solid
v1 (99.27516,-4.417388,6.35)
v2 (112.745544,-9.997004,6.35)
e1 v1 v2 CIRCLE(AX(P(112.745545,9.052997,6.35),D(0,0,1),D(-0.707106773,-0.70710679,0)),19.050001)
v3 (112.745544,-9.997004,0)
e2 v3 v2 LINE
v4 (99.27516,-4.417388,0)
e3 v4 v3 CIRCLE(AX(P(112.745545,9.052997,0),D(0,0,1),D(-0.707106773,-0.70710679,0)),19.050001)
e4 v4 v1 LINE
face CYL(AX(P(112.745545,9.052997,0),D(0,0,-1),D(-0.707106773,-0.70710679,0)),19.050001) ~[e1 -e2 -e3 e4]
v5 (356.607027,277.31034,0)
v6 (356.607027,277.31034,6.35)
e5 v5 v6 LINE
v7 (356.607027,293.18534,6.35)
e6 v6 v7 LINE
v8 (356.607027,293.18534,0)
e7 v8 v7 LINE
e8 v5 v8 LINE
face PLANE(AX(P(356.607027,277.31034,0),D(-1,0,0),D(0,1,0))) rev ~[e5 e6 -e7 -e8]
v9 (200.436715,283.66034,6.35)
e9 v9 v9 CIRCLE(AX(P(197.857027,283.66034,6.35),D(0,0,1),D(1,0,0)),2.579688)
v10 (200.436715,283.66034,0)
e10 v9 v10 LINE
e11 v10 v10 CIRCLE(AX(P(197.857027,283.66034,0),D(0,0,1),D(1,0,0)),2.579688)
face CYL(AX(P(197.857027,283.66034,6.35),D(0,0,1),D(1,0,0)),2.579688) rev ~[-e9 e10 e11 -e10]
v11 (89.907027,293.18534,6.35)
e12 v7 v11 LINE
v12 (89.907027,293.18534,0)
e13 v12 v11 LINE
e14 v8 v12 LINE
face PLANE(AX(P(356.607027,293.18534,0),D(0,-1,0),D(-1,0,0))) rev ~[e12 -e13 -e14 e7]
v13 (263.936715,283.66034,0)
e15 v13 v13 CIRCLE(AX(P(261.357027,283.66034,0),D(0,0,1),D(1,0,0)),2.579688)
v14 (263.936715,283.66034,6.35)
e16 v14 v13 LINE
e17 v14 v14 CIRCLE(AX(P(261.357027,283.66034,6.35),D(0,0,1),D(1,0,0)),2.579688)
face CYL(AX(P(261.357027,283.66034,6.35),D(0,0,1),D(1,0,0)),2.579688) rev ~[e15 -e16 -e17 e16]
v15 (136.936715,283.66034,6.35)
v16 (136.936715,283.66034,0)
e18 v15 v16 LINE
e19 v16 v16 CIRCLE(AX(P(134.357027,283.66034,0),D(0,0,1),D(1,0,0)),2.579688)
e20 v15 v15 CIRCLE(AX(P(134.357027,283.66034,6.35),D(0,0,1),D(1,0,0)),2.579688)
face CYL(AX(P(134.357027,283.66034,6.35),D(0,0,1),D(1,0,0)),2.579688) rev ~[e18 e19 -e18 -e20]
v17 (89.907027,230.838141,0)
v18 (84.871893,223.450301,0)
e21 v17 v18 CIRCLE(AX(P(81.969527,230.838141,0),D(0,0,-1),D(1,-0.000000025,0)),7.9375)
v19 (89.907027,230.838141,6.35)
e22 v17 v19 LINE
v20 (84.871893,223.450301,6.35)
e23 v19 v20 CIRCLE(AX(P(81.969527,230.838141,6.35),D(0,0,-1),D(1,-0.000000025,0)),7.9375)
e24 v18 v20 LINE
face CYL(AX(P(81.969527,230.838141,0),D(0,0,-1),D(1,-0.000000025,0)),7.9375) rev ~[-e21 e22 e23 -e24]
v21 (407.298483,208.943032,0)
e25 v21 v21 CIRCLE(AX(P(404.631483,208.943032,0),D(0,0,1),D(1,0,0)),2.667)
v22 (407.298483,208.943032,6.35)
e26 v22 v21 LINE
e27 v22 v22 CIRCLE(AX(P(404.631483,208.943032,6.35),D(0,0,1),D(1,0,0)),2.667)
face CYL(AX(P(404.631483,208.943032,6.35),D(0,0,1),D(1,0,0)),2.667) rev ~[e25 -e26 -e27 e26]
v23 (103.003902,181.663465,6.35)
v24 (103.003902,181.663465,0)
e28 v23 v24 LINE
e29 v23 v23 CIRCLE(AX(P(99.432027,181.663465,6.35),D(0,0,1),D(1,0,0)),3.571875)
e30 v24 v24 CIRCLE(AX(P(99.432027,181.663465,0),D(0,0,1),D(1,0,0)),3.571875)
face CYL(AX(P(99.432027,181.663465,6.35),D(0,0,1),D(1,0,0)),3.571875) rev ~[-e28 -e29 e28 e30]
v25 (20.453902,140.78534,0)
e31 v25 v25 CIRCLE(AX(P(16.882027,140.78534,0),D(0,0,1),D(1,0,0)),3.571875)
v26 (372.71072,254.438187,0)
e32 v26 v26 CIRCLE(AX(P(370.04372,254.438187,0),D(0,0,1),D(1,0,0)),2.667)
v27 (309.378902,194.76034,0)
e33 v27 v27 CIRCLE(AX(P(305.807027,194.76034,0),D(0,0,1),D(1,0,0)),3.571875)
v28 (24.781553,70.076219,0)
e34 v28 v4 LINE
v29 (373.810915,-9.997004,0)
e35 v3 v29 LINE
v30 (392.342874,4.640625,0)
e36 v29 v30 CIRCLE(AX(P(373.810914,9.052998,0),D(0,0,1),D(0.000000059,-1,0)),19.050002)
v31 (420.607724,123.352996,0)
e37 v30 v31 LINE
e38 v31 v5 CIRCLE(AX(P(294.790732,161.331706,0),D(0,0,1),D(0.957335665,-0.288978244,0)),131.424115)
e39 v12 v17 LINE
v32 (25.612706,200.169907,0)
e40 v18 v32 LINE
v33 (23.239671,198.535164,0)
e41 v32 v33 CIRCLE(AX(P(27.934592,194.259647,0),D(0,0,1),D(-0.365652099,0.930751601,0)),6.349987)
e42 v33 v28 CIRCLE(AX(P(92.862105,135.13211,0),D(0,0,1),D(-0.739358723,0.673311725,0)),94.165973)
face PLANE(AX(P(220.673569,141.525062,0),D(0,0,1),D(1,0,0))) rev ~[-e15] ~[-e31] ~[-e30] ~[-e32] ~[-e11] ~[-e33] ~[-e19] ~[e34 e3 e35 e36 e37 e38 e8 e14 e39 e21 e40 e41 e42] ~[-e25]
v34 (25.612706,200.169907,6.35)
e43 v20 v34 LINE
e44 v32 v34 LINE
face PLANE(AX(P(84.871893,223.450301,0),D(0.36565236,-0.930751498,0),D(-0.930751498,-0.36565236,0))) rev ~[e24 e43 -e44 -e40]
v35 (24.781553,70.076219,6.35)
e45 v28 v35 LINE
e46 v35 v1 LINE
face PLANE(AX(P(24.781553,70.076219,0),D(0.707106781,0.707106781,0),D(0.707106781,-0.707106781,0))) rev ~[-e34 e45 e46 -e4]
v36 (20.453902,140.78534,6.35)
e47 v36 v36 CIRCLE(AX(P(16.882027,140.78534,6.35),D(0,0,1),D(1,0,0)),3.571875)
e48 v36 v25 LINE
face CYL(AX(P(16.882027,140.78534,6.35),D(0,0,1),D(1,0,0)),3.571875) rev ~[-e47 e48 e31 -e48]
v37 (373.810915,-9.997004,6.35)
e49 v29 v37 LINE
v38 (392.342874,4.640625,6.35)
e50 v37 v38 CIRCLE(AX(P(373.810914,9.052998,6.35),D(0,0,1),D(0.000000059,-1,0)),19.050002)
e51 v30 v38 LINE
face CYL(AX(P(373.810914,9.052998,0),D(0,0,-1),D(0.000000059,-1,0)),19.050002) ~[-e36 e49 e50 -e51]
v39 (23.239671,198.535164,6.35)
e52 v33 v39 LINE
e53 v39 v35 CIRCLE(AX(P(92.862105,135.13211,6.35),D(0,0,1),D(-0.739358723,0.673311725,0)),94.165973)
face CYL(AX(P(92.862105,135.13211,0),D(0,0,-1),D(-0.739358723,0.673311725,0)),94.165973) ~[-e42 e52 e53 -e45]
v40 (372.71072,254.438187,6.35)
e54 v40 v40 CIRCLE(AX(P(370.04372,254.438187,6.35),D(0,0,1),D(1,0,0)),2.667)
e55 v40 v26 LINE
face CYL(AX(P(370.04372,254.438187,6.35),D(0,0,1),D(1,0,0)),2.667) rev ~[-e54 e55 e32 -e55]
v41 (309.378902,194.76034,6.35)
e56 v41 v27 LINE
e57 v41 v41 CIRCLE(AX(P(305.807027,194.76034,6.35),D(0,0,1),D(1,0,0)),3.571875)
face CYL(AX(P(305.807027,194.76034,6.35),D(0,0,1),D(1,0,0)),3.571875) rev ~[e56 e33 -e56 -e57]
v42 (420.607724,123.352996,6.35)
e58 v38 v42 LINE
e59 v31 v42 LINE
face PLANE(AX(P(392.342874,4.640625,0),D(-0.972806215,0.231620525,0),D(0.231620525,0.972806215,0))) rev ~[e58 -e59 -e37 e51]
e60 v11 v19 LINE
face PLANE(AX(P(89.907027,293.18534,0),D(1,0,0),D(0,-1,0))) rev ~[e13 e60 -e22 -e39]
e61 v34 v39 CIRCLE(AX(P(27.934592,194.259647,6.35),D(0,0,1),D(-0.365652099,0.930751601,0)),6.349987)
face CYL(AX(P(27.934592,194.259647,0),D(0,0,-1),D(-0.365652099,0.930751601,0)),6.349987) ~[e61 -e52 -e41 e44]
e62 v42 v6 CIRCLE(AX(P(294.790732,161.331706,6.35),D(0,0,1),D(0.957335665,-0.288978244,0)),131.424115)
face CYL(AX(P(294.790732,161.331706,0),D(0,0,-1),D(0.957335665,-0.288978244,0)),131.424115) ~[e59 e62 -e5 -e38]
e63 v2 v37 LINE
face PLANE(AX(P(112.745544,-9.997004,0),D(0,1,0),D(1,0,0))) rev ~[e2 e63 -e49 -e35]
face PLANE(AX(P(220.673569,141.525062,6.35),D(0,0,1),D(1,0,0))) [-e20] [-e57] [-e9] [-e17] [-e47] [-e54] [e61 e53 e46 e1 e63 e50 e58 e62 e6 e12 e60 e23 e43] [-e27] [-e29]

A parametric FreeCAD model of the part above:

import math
import FreeCAD as App
import Part
import Sketcher

V = App.Vector
Q = App.Units.Quantity

doc = App.newDocument("Part")
params = doc.addObject("Spreadsheet::Sheet", "Params")
for row, (alias, value) in enumerate([
    ("sketch1_radius", "0.75 in"),
    ("sketch1_width", "10.5 in"),
    ("sketch1_radius2", "0.3125 in"),
    ("sketch1_height", "0.625 in"),
    ("pad1_length", "0.25 in"),
    ("sketch2_diameter", "0.203125 in"),
    ("sketch3_diameter", "0.28125 in"),
    ("pocket2_length", "0.375 in"),
    ("sketch4_diameter", "0.21 in"),
    ("pocket3_length", "0.3 in"),
], start=1):
    params.set(f"A{row}", alias)
    params.set(f"B{row}", "=" + value)
    params.setAlias(f"B{row}", alias)

body = doc.addObject("PartDesign::Body", "Body")

# Sketch on XY plane
sketch1 = body.newObject("Sketcher::SketchObject", "Sketch")
sketch1.AttachmentSupport = (doc.getObject("XY_Plane"), [""])
sketch1.MapMode = "FlatFace"
sketch1.addGeometry(Part.LineSegment(V(356.6, 293.2, 0), V(89.9, 293.2, 0)), False)
sketch1.addGeometry(Part.LineSegment(V(89.9, 293.2, 0), V(89.9, 230.8, 0)), False)
sketch1.addGeometry(Part.ArcOfCircle(Part.Circle(V(82, 230.8, 0), V(0, 0, 1), 7.9), math.radians(-69), math.radians(0)), False)
sketch1.addGeometry(Part.LineSegment(V(84.9, 223.5, 0), V(25.6, 200.2, 0)), False)
sketch1.addGeometry(Part.ArcOfCircle(Part.Circle(V(27.9, 194.3, 0), V(0, 0, 1), 6.3), math.radians(111), math.radians(138)), False)
sketch1.addGeometry(Part.ArcOfCircle(Part.Circle(V(92.9, 135.1, 0), V(0, 0, 1), 94.2), math.radians(138), math.radians(224)), False)
sketch1.addGeometry(Part.LineSegment(V(24.8, 70.1, 0), V(99.3, -4.4, 0)), False)
sketch1.addGeometry(Part.ArcOfCircle(Part.Circle(V(112.7, 9.1, 0), V(0, 0, 1), 19.1), math.radians(-135), math.radians(-90)), False)
sketch1.addGeometry(Part.LineSegment(V(112.7, -10, 0), V(373.8, -10, 0)), False)
sketch1.addGeometry(Part.ArcOfCircle(Part.Circle(V(373.8, 9.1, 0), V(0, 0, 1), 19.1), math.radians(-90), math.radians(-13)), False)
sketch1.addGeometry(Part.LineSegment(V(392.3, 4.6, 0), V(420.6, 123.4, 0)), False)
sketch1.addGeometry(Part.ArcOfCircle(Part.Circle(V(294.8, 161.3, 0), V(0, 0, 1), 131.4), math.radians(-17), math.radians(62)), False)
sketch1.addGeometry(Part.LineSegment(V(356.6, 277.3, 0), V(356.6, 293.2, 0)), False)
sketch1.addConstraint(Sketcher.Constraint("Coincident", 0, 2, 1, 1))
sketch1.addConstraint(Sketcher.Constraint("Tangent", 1, 2, 2, 2))
sketch1.addConstraint(Sketcher.Constraint("Tangent", 2, 1, 3, 1))
sketch1.addConstraint(Sketcher.Constraint("Tangent", 3, 2, 4, 1))
sketch1.addConstraint(Sketcher.Constraint("Tangent", 4, 2, 5, 1))
sketch1.addConstraint(Sketcher.Constraint("Coincident", 5, 2, 6, 1))
sketch1.addConstraint(Sketcher.Constraint("Tangent", 6, 2, 7, 1))
sketch1.addConstraint(Sketcher.Constraint("Tangent", 7, 2, 8, 1))
sketch1.addConstraint(Sketcher.Constraint("Tangent", 8, 2, 9, 1))
sketch1.addConstraint(Sketcher.Constraint("Tangent", 9, 2, 10, 1))
sketch1.addConstraint(Sketcher.Constraint("Coincident", 10, 2, 11, 1))
sketch1.addConstraint(Sketcher.Constraint("Coincident", 11, 2, 12, 1))
sketch1.addConstraint(Sketcher.Constraint("Coincident", 12, 2, 0, 1))
sketch1.addConstraint(Sketcher.Constraint("Horizontal", 0))
sketch1.addConstraint(Sketcher.Constraint("Vertical", 1))
sketch1.addConstraint(Sketcher.Constraint("Horizontal", 8))
sketch1.addConstraint(Sketcher.Constraint("Vertical", 12))
sketch1.addConstraint(Sketcher.Constraint("Equal", 7, 9))
sketch1.addConstraint(Sketcher.Constraint("Radius", 7, Q("0.75 in")))
sketch1.addConstraint(Sketcher.Constraint("DistanceX", 0, 2, 0, 1, Q("10.5 in")))
sketch1.addConstraint(Sketcher.Constraint("Angle", 6, Q("-45 deg")))
sketch1.addConstraint(Sketcher.Constraint("Radius", 2, Q("0.3125 in")))
sketch1.addConstraint(Sketcher.Constraint("DistanceY", 9, 3, 10, 2, Q("4.4999999 in")))
sketch1.addConstraint(Sketcher.Constraint("DistanceY", 12, 1, 12, 2, Q("0.625 in")))
sketch1.addConstraint(Sketcher.Constraint("DistanceY", 1, 2, 1, 1, 62.347199))
sketch1.addConstraint(Sketcher.Constraint("Radius", 4, 6.349987))
sketch1.addConstraint(Sketcher.Constraint("Radius", 5, 94.165973))
sketch1.addConstraint(Sketcher.Constraint("Radius", 11, 131.424115))
sketch1.addConstraint(Sketcher.Constraint("DistanceX", 8, 1, 8, 2, 261.065371))
sketch1.addConstraint(Sketcher.Constraint("DistanceY", -1, 1, 9, 3, 9.052998))
sketch1.addConstraint(Sketcher.Constraint("DistanceY", -1, 1, 2, 1, 223.450301))
sketch1.addConstraint(Sketcher.Constraint("DistanceX", 4, 3, 2, 1, 56.937301))
sketch1.addConstraint(Sketcher.Constraint("DistanceX", 3, 2, 5, 3, 67.249399))
sketch1.addConstraint(Sketcher.Constraint("DistanceY", 6, 2, 5, 3, 139.549498))
sketch1.addConstraint(Sketcher.Constraint("Distance", 6, 105.349869))
sketch1.addConstraint(Sketcher.Constraint("Distance", 10, 122.030852))
sketch1.addConstraint(Sketcher.Constraint("DistanceX", -1, 1, 4, 3, 27.934592))
sketch1.setExpression("Constraints[18]", "Params.sketch1_radius")
sketch1.setExpression("Constraints[19]", "Params.sketch1_width")
sketch1.setExpression("Constraints[21]", "Params.sketch1_radius2")
sketch1.setExpression("Constraints[23]", "Params.sketch1_height")
pad1 = body.newObject("PartDesign::Pad", "Pad")
pad1.Profile = sketch1
pad1.setExpression("Length", "Params.pad1_length")

# Sketch on XY plane
sketch2 = body.newObject("Sketcher::SketchObject", "Sketch001")
sketch2.AttachmentSupport = (doc.getObject("XY_Plane"), [""])
sketch2.MapMode = "FlatFace"
sketch2.AttachmentOffset = App.Placement(V(0, 0, 0.25 * 25.4), App.Rotation())
sketch2.addGeometry(Part.Circle(V(261.4, 283.7, 0), V(0, 0, 1), 2.6), False)
sketch2.addGeometry(Part.Circle(V(197.9, 283.7, 0), V(0, 0, 1), 2.6), False)
sketch2.addGeometry(Part.Circle(V(134.4, 283.7, 0), V(0, 0, 1), 2.6), False)
sketch2.addConstraint(Sketcher.Constraint("Equal", 0, 1))
sketch2.addConstraint(Sketcher.Constraint("Equal", 1, 2))
sketch2.addConstraint(Sketcher.Constraint("Horizontal", 0, 3, 1, 3))
sketch2.addConstraint(Sketcher.Constraint("Horizontal", 1, 3, 2, 3))
sketch2.addConstraint(Sketcher.Constraint("Diameter", 0, Q("0.203125 in")))
sketch2.addConstraint(Sketcher.Constraint("DistanceX", 2, 3, 0, 3, Q("5 in")))
sketch2.addConstraint(Sketcher.Constraint("DistanceX", 1, 3, 0, 3, Q("2.5 in")))
sketch2.addConstraint(Sketcher.Constraint("DistanceY", -1, 1, 0, 3, 283.66034))
sketch2.addConstraint(Sketcher.Constraint("DistanceX", -1, 1, 0, 3, 261.357027))
sketch2.setExpression("Constraints[4]", "Params.sketch2_diameter")
pocket1 = body.newObject("PartDesign::Pocket", "Pocket")
pocket1.Profile = sketch2
pocket1.Type = "ThroughAll"

# Sketch on XY plane
sketch3 = body.newObject("Sketcher::SketchObject", "Sketch002")
sketch3.AttachmentSupport = (doc.getObject("XY_Plane"), [""])
sketch3.MapMode = "FlatFace"
sketch3.AttachmentOffset = App.Placement(V(0, 0, 0.25 * 25.4), App.Rotation())
sketch3.addGeometry(Part.Circle(V(99.4, 181.7, 0), V(0, 0, 1), 3.6), False)
sketch3.addGeometry(Part.Circle(V(16.9, 140.8, 0), V(0, 0, 1), 3.6), False)
sketch3.addGeometry(Part.Circle(V(305.8, 194.8, 0), V(0, 0, 1), 3.6), False)
sketch3.addConstraint(Sketcher.Constraint("Equal", 0, 1))
sketch3.addConstraint(Sketcher.Constraint("Equal", 1, 2))
sketch3.addConstraint(Sketcher.Constraint("Diameter", 0, Q("0.28125 in")))
sketch3.addConstraint(Sketcher.Constraint("DistanceX", 1, 3, 0, 3, Q("3.25 in")))
sketch3.addConstraint(Sketcher.Constraint("DistanceY", 1, 3, 0, 3, Q("1.609375 in")))
sketch3.addConstraint(Sketcher.Constraint("DistanceX", 0, 3, 2, 3, Q("8.125 in")))
sketch3.addConstraint(Sketcher.Constraint("DistanceY", 0, 3, 2, 3, Q("0.515625 in")))
sketch3.addConstraint(Sketcher.Constraint("DistanceY", -1, 1, 1, 3, 140.78534))
sketch3.addConstraint(Sketcher.Constraint("DistanceX", -1, 1, 0, 3, 99.432027))
sketch3.setExpression("Constraints[2]", "Params.sketch3_diameter")
pocket2 = body.newObject("PartDesign::Pocket", "Pocket001")
pocket2.Profile = sketch3
pocket2.setExpression("Length", "Params.pocket2_length")

# Sketch on XY plane
sketch4 = body.newObject("Sketcher::SketchObject", "Sketch003")
sketch4.AttachmentSupport = (doc.getObject("XY_Plane"), [""])
sketch4.MapMode = "FlatFace"
sketch4.AttachmentOffset = App.Placement(V(0, 0, 0.25 * 25.4), App.Rotation())
sketch4.addGeometry(Part.Circle(V(370, 254.4, 0), V(0, 0, 1), 2.7), False)
sketch4.addGeometry(Part.Circle(V(404.6, 208.9, 0), V(0, 0, 1), 2.7), False)
sketch4.addConstraint(Sketcher.Constraint("Equal", 0, 1))
sketch4.addConstraint(Sketcher.Constraint("Diameter", 0, Q("0.21 in")))
sketch4.addConstraint(Sketcher.Constraint("DistanceX", -1, 1, 0, 3, 370.04372))
sketch4.addConstraint(Sketcher.Constraint("DistanceY", -1, 1, 1, 3, 208.943032))
sketch4.addConstraint(Sketcher.Constraint("DistanceY", -1, 1, 0, 3, 254.438187))
sketch4.addConstraint(Sketcher.Constraint("DistanceX", -1, 1, 1, 3, 404.631483))
sketch4.setExpression("Constraints[1]", "Params.sketch4_diameter")
pocket3 = body.newObject("PartDesign::Pocket", "Pocket002")
pocket3.Profile = sketch4
pocket3.setExpression("Length", "Params.pocket3_length")

doc.recompute()
